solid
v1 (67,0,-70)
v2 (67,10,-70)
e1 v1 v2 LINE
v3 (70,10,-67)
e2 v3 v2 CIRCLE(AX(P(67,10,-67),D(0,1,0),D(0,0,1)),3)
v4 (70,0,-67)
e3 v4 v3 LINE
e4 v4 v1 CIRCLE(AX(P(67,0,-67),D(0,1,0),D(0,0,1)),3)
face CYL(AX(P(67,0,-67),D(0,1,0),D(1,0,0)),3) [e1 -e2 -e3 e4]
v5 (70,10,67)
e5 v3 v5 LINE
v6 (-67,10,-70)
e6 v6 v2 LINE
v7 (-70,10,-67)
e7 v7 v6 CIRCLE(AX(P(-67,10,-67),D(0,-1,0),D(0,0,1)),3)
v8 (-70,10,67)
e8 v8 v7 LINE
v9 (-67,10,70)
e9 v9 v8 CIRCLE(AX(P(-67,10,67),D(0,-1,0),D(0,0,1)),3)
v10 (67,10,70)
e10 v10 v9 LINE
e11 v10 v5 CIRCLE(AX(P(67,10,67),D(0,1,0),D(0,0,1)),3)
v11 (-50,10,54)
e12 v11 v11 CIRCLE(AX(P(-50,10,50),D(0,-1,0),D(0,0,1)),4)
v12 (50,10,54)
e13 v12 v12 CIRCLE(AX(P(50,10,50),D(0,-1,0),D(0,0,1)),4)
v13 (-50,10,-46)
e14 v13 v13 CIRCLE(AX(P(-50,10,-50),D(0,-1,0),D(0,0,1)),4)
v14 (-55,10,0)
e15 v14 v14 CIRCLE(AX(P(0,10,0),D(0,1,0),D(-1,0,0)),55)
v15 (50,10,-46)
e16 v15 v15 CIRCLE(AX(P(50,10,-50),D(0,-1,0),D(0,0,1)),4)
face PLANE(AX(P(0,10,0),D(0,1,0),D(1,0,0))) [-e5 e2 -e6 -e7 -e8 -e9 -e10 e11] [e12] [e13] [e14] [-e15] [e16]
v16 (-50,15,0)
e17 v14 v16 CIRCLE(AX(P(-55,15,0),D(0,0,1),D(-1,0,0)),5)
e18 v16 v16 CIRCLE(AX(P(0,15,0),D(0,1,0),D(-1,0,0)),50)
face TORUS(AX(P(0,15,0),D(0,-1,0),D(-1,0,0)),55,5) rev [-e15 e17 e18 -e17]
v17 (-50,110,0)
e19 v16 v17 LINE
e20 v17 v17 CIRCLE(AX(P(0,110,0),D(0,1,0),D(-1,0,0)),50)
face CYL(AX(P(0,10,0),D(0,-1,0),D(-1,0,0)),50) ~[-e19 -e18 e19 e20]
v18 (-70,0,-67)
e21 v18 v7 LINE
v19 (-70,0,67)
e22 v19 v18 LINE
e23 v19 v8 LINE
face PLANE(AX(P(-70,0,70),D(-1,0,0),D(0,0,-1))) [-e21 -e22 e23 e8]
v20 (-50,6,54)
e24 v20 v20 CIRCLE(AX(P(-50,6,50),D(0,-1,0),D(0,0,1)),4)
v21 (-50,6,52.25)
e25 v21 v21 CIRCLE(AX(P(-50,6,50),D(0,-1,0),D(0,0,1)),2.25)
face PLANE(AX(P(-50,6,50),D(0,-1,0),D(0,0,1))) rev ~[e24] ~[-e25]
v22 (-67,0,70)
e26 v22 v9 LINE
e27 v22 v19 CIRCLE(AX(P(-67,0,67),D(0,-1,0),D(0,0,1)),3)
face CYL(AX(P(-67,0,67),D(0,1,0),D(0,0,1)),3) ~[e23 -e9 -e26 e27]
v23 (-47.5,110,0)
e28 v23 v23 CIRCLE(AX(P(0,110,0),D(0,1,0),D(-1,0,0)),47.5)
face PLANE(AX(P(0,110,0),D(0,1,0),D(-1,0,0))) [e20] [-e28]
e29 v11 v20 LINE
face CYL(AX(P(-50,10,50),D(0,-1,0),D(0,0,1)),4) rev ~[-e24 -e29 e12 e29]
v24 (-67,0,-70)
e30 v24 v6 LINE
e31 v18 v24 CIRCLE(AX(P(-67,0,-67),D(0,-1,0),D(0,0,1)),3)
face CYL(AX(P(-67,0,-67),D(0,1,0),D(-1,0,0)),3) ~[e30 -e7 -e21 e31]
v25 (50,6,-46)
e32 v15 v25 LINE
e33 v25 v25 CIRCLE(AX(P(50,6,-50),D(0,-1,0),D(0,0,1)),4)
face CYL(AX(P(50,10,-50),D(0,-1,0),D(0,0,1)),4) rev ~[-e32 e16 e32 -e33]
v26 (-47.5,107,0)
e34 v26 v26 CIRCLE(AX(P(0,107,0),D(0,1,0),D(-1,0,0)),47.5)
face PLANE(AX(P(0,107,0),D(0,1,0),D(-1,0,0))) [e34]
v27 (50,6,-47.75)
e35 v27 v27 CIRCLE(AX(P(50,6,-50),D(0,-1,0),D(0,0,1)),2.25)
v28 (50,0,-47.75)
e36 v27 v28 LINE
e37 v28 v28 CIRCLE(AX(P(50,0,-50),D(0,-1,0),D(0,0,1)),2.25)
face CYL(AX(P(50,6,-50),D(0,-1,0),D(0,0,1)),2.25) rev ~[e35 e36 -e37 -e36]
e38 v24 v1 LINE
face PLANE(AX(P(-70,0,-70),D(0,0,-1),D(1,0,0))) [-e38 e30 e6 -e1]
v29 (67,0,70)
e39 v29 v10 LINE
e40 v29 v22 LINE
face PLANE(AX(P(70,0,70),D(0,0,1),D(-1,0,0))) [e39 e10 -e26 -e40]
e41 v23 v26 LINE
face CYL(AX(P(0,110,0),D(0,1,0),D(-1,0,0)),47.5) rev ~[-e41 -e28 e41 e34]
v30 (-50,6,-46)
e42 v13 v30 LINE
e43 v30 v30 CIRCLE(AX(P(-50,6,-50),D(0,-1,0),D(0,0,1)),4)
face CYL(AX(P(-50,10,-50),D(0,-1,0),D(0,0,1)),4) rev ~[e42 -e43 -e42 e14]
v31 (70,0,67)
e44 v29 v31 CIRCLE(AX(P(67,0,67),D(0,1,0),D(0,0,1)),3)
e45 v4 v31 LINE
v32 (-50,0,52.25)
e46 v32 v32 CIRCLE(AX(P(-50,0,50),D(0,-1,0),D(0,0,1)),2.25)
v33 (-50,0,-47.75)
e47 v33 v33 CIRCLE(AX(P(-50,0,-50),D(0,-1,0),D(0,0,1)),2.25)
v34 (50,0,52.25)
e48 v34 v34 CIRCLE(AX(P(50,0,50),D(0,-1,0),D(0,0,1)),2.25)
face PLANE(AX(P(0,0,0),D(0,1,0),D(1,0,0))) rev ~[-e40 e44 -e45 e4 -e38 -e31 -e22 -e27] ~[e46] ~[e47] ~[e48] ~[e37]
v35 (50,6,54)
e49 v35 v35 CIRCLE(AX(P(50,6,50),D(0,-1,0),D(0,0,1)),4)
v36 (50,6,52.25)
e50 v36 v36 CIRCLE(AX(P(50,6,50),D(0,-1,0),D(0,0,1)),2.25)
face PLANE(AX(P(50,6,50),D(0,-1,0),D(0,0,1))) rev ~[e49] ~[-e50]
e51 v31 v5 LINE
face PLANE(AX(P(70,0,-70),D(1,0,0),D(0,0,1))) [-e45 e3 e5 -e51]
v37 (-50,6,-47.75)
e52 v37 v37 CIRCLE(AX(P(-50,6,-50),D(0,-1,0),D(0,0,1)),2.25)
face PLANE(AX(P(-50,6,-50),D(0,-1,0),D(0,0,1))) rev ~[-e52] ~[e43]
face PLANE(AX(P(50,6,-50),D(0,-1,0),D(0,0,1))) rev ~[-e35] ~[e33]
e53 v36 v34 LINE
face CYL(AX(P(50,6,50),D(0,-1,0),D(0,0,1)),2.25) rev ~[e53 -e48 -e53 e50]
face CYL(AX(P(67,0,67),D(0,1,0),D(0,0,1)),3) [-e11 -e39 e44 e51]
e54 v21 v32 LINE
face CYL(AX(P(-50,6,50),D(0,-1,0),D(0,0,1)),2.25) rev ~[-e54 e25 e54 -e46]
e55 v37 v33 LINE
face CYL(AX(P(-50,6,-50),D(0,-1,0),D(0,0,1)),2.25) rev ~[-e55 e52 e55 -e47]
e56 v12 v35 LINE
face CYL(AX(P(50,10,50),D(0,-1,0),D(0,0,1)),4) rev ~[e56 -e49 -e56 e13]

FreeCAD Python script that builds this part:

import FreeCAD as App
import Part
import Sketcher
from FreeCAD import Vector


def edges_at(feature, points):
    """Names of the edges that pass closest to the given points."""
    edges = feature.Shape.Edges
    near = lambda p: min(range(len(edges)), key=lambda i: edges[i].distToShape(Part.Vertex(*p))[0])
    return sorted({f"Edge{near(p) + 1}" for p in points})

doc = App.newDocument("Part")
body = doc.addObject("PartDesign::Body", "Body")

# Sketch on XZ plane
sketch1 = body.newObject("Sketcher::SketchObject", "Sketch")
sketch1.AttachmentSupport = (doc.getObject("XZ_Plane"), [""])
sketch1.MapMode = "FlatFace"
sketch1.addGeometry(Part.LineSegment(Vector(-70, 70, 0), Vector(70, 70, 0)), False)
sketch1.addGeometry(Part.LineSegment(Vector(70, 70, 0), Vector(70, -70, 0)), False)
sketch1.addGeometry(Part.LineSegment(Vector(70, -70, 0), Vector(-70, -70, 0)), False)
sketch1.addGeometry(Part.LineSegment(Vector(-70, -70, 0), Vector(-70, 70, 0)), False)
sketch1.addConstraint(Sketcher.Constraint("Coincident", 0, 2, 1, 1))
sketch1.addConstraint(Sketcher.Constraint("Coincident", 1, 2, 2, 1))
sketch1.addConstraint(Sketcher.Constraint("Coincident", 2, 2, 3, 1))
sketch1.addConstraint(Sketcher.Constraint("Coincident", 3, 2, 0, 1))
sketch1.addConstraint(Sketcher.Constraint("Horizontal", 0))
sketch1.addConstraint(Sketcher.Constraint("Vertical", 1))
sketch1.addConstraint(Sketcher.Constraint("Horizontal", 2))
sketch1.addConstraint(Sketcher.Constraint("Vertical", 3))
sketch1.addConstraint(Sketcher.Constraint("Symmetric", 0, 2, 2, 2, -1, 1))
sketch1.addConstraint(Sketcher.Constraint("Equal", 2, 1))
sketch1.addConstraint(Sketcher.Constraint("DistanceX", 0, 1, 0, 2, 140.0))
pad1 = body.newObject("PartDesign::Pad", "Pad")
pad1.Profile = sketch1
pad1.Length = 10
pad1.Reversed = True

# Sketch on XZ plane
sketch2 = body.newObject("Sketcher::SketchObject", "Sketch001")
sketch2.AttachmentSupport = (doc.getObject("XZ_Plane"), [""])
sketch2.MapMode = "FlatFace"
sketch2.AttachmentOffset = App.Placement(Vector(0, 0, -10), App.Rotation())
sketch2.addGeometry(Part.Circle(Vector(0, 0, 0), Vector(0, 0, 1), 50), False)
sketch2.addConstraint(Sketcher.Constraint("Coincident", 0, 3, -1, 1))
sketch2.addConstraint(Sketcher.Constraint("Diameter", 0, 100.0))
pad2 = body.newObject("PartDesign::Pad", "Pad001")
pad2.Profile = sketch2
pad2.Length = 100
pad2.Reversed = True

# Sketch on XZ plane
sketch3 = body.newObject("Sketcher::SketchObject", "Sketch002")
sketch3.AttachmentSupport = (doc.getObject("XZ_Plane"), [""])
sketch3.MapMode = "FlatFace"
sketch3.AttachmentOffset = App.Placement(Vector(0, 0, -110), App.Rotation())
sketch3.addGeometry(Part.Circle(Vector(0, 0, 0), Vector(0, 0, 1), 48), False)
sketch3.addConstraint(Sketcher.Constraint("Coincident", 0, 3, -1, 1))
sketch3.addConstraint(Sketcher.Constraint("Diameter", 0, 95.0))
pocket1 = body.newObject("PartDesign::Pocket", "Pocket")
pocket1.Profile = sketch3
pocket1.Length = 3
pocket1.Reversed = True

# Sketch on XZ plane
sketch4 = body.newObject("Sketcher::SketchObject", "Sketch003")
sketch4.AttachmentSupport = (doc.getObject("XZ_Plane"), [""])
sketch4.MapMode = "FlatFace"
sketch4.AttachmentOffset = App.Placement(Vector(0, 0, -10), App.Rotation())
sketch4.addGeometry(Part.Circle(Vector(50, -50, 0), Vector(0, 0, 1), 2.2), False)
sketch4.addGeometry(Part.Circle(Vector(-50, -50, 0), Vector(0, 0, 1), 2.2), False)
sketch4.addGeometry(Part.Circle(Vector(-50, 50, 0), Vector(0, 0, 1), 2.2), False)
sketch4.addGeometry(Part.Circle(Vector(50, 50, 0), Vector(0, 0, 1), 2.2), False)
sketch4.addConstraint(Sketcher.Constraint("Equal", 0, 1))
sketch4.addConstraint(Sketcher.Constraint("Equal", 1, 2))
sketch4.addConstraint(Sketcher.Constraint("Equal", 2, 3))
sketch4.addConstraint(Sketcher.Constraint("Symmetric", 0, 3, 2, 3, -1, 1))
sketch4.addConstraint(Sketcher.Constraint("Symmetric", 1, 3, 3, 3, -1, 1))
sketch4.addConstraint(Sketcher.Constraint("Symmetric", 0, 3, 1, 3, -2))
sketch4.addConstraint(Sketcher.Constraint("Diameter", 0, 4.5))
sketch4.addConstraint(Sketcher.Constraint("DistanceX", -1, 1, 0, 3, 50.0))
sketch4.addConstraint(Sketcher.Constraint("DistanceY", 0, 3, -1, 1, 50.0))
doc.recompute()
hole = body.newObject("PartDesign::Hole", "Hole")
hole.Profile = sketch4
hole.ThreadType = "None"
hole.Diameter = 4.5
hole.DepthType = "Dimension"
hole.Depth = 40
hole.DrillPoint = "Angled"
hole.DrillPointAngle = 118
hole.HoleCutType = "Counterbore"
hole.HoleCutDiameter = 8
hole.HoleCutDepth = 4
hole.Reversed = True
doc.recompute()

fillet = body.newObject("PartDesign::Fillet", "Fillet")
fillet.Base = (hole, edges_at(hole, [
    (70, 5, 70),
    (-70, 5, 70),
    (70, 5, -70),
    (-70, 5, -70),
]))
fillet.Radius = 3
doc.recompute()

fillet2 = body.newObject("PartDesign::Fillet", "Fillet001")
fillet2.Base = (fillet, edges_at(fillet, [(46.616, 10, 18.081)]))
fillet2.Radius = 5

doc.recompute()
